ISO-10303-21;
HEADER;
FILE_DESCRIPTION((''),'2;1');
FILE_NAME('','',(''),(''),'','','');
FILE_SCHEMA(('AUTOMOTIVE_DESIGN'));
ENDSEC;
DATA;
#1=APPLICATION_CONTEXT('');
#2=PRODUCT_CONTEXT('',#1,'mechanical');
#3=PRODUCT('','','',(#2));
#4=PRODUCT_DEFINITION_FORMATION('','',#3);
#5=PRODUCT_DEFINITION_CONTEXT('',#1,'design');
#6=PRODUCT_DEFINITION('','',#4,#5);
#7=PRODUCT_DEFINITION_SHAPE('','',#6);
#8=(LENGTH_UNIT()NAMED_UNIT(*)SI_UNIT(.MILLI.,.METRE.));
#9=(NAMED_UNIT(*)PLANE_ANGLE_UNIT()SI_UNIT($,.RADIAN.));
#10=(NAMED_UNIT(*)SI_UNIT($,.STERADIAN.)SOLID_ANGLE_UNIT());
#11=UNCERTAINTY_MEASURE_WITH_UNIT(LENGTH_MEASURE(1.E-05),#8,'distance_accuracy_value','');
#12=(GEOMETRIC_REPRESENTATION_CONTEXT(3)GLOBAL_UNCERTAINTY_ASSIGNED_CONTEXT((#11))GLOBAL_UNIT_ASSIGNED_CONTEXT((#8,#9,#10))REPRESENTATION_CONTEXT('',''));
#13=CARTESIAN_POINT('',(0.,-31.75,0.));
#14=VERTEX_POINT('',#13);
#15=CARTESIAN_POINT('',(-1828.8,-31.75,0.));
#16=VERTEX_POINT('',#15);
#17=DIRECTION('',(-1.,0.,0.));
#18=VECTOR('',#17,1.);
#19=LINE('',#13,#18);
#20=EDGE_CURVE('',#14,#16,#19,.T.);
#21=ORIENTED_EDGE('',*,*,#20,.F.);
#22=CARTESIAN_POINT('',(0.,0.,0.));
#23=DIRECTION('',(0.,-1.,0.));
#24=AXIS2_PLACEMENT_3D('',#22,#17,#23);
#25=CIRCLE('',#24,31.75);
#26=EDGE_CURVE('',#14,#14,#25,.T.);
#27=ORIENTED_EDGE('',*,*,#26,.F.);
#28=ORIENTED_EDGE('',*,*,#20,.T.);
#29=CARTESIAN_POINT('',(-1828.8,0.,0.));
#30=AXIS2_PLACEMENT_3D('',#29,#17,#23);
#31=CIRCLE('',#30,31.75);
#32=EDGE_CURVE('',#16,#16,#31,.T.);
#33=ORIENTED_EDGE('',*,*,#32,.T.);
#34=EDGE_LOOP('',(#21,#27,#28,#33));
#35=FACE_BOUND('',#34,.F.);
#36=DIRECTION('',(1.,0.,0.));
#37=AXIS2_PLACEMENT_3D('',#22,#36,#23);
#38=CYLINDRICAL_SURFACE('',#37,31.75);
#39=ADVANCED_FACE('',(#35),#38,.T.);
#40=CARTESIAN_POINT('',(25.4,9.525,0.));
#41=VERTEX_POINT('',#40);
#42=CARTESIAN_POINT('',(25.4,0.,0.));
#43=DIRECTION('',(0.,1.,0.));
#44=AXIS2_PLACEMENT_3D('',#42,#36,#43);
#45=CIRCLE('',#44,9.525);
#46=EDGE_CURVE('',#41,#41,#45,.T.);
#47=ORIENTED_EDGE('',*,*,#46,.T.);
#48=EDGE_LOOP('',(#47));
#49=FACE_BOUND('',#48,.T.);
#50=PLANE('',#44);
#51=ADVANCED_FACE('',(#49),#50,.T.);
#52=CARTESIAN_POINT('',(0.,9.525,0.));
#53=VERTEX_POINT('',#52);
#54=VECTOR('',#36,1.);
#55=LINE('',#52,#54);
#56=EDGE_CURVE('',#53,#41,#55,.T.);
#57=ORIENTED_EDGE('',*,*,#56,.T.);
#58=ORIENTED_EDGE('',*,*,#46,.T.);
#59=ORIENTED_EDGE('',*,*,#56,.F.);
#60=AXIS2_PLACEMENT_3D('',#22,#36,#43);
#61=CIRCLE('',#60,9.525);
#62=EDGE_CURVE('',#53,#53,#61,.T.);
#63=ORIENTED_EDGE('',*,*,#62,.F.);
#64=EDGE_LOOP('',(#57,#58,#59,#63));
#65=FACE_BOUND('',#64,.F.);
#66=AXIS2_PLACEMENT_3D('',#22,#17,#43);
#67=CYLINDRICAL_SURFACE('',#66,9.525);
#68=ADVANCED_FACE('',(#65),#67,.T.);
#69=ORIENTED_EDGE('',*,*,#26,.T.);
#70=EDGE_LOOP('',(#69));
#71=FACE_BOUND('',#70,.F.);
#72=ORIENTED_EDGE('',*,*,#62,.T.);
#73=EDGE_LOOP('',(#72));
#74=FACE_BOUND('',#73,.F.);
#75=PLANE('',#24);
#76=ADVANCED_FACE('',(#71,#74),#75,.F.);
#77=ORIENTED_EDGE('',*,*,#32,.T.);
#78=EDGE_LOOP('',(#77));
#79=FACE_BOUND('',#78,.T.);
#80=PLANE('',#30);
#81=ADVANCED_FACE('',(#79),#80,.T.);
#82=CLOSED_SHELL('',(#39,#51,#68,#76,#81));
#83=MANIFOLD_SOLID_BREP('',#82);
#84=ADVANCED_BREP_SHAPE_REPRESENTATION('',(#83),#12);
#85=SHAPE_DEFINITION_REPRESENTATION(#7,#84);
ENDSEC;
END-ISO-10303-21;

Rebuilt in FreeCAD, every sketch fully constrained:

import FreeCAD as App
import Part
import Sketcher
Q = App.Units.Quantity

doc = App.newDocument("Part")
body = doc.addObject("PartDesign::Body", "Body")

# Sketch on YZ plane
sketch1 = body.newObject("Sketcher::SketchObject", "Sketch")
sketch1.AttachmentSupport = (doc.getObject("YZ_Plane"), [""])
sketch1.MapMode = "FlatFace"
sketch1.addGeometry(Part.Circle(App.Vector(0, 0, 0), App.Vector(0, 0, 1), 10), False)
sketch1.addConstraint(Sketcher.Constraint("Coincident", 0, 3, -1, 1))
sketch1.addConstraint(Sketcher.Constraint("Diameter", 0, Q("0.75 in")))
pad1 = body.newObject("PartDesign::Pad", "Pad")
pad1.Profile = sketch1
pad1.Length = Q("1 in")

# Sketch on YZ plane
sketch2 = body.newObject("Sketcher::SketchObject", "Sketch001")
sketch2.AttachmentSupport = (doc.getObject("YZ_Plane"), [""])
sketch2.MapMode = "FlatFace"
sketch2.addGeometry(Part.Circle(App.Vector(0, 0, 0), App.Vector(0, 0, 1), 32), False)
sketch2.addConstraint(Sketcher.Constraint("Coincident", 0, 3, -1, 1))
sketch2.addConstraint(Sketcher.Constraint("Diameter", 0, Q("2.5 in")))
pad2 = body.newObject("PartDesign::Pad", "Pad001")
pad2.Profile = sketch2
pad2.Length = Q("72 in")
pad2.Reversed = True

doc.recompute()
